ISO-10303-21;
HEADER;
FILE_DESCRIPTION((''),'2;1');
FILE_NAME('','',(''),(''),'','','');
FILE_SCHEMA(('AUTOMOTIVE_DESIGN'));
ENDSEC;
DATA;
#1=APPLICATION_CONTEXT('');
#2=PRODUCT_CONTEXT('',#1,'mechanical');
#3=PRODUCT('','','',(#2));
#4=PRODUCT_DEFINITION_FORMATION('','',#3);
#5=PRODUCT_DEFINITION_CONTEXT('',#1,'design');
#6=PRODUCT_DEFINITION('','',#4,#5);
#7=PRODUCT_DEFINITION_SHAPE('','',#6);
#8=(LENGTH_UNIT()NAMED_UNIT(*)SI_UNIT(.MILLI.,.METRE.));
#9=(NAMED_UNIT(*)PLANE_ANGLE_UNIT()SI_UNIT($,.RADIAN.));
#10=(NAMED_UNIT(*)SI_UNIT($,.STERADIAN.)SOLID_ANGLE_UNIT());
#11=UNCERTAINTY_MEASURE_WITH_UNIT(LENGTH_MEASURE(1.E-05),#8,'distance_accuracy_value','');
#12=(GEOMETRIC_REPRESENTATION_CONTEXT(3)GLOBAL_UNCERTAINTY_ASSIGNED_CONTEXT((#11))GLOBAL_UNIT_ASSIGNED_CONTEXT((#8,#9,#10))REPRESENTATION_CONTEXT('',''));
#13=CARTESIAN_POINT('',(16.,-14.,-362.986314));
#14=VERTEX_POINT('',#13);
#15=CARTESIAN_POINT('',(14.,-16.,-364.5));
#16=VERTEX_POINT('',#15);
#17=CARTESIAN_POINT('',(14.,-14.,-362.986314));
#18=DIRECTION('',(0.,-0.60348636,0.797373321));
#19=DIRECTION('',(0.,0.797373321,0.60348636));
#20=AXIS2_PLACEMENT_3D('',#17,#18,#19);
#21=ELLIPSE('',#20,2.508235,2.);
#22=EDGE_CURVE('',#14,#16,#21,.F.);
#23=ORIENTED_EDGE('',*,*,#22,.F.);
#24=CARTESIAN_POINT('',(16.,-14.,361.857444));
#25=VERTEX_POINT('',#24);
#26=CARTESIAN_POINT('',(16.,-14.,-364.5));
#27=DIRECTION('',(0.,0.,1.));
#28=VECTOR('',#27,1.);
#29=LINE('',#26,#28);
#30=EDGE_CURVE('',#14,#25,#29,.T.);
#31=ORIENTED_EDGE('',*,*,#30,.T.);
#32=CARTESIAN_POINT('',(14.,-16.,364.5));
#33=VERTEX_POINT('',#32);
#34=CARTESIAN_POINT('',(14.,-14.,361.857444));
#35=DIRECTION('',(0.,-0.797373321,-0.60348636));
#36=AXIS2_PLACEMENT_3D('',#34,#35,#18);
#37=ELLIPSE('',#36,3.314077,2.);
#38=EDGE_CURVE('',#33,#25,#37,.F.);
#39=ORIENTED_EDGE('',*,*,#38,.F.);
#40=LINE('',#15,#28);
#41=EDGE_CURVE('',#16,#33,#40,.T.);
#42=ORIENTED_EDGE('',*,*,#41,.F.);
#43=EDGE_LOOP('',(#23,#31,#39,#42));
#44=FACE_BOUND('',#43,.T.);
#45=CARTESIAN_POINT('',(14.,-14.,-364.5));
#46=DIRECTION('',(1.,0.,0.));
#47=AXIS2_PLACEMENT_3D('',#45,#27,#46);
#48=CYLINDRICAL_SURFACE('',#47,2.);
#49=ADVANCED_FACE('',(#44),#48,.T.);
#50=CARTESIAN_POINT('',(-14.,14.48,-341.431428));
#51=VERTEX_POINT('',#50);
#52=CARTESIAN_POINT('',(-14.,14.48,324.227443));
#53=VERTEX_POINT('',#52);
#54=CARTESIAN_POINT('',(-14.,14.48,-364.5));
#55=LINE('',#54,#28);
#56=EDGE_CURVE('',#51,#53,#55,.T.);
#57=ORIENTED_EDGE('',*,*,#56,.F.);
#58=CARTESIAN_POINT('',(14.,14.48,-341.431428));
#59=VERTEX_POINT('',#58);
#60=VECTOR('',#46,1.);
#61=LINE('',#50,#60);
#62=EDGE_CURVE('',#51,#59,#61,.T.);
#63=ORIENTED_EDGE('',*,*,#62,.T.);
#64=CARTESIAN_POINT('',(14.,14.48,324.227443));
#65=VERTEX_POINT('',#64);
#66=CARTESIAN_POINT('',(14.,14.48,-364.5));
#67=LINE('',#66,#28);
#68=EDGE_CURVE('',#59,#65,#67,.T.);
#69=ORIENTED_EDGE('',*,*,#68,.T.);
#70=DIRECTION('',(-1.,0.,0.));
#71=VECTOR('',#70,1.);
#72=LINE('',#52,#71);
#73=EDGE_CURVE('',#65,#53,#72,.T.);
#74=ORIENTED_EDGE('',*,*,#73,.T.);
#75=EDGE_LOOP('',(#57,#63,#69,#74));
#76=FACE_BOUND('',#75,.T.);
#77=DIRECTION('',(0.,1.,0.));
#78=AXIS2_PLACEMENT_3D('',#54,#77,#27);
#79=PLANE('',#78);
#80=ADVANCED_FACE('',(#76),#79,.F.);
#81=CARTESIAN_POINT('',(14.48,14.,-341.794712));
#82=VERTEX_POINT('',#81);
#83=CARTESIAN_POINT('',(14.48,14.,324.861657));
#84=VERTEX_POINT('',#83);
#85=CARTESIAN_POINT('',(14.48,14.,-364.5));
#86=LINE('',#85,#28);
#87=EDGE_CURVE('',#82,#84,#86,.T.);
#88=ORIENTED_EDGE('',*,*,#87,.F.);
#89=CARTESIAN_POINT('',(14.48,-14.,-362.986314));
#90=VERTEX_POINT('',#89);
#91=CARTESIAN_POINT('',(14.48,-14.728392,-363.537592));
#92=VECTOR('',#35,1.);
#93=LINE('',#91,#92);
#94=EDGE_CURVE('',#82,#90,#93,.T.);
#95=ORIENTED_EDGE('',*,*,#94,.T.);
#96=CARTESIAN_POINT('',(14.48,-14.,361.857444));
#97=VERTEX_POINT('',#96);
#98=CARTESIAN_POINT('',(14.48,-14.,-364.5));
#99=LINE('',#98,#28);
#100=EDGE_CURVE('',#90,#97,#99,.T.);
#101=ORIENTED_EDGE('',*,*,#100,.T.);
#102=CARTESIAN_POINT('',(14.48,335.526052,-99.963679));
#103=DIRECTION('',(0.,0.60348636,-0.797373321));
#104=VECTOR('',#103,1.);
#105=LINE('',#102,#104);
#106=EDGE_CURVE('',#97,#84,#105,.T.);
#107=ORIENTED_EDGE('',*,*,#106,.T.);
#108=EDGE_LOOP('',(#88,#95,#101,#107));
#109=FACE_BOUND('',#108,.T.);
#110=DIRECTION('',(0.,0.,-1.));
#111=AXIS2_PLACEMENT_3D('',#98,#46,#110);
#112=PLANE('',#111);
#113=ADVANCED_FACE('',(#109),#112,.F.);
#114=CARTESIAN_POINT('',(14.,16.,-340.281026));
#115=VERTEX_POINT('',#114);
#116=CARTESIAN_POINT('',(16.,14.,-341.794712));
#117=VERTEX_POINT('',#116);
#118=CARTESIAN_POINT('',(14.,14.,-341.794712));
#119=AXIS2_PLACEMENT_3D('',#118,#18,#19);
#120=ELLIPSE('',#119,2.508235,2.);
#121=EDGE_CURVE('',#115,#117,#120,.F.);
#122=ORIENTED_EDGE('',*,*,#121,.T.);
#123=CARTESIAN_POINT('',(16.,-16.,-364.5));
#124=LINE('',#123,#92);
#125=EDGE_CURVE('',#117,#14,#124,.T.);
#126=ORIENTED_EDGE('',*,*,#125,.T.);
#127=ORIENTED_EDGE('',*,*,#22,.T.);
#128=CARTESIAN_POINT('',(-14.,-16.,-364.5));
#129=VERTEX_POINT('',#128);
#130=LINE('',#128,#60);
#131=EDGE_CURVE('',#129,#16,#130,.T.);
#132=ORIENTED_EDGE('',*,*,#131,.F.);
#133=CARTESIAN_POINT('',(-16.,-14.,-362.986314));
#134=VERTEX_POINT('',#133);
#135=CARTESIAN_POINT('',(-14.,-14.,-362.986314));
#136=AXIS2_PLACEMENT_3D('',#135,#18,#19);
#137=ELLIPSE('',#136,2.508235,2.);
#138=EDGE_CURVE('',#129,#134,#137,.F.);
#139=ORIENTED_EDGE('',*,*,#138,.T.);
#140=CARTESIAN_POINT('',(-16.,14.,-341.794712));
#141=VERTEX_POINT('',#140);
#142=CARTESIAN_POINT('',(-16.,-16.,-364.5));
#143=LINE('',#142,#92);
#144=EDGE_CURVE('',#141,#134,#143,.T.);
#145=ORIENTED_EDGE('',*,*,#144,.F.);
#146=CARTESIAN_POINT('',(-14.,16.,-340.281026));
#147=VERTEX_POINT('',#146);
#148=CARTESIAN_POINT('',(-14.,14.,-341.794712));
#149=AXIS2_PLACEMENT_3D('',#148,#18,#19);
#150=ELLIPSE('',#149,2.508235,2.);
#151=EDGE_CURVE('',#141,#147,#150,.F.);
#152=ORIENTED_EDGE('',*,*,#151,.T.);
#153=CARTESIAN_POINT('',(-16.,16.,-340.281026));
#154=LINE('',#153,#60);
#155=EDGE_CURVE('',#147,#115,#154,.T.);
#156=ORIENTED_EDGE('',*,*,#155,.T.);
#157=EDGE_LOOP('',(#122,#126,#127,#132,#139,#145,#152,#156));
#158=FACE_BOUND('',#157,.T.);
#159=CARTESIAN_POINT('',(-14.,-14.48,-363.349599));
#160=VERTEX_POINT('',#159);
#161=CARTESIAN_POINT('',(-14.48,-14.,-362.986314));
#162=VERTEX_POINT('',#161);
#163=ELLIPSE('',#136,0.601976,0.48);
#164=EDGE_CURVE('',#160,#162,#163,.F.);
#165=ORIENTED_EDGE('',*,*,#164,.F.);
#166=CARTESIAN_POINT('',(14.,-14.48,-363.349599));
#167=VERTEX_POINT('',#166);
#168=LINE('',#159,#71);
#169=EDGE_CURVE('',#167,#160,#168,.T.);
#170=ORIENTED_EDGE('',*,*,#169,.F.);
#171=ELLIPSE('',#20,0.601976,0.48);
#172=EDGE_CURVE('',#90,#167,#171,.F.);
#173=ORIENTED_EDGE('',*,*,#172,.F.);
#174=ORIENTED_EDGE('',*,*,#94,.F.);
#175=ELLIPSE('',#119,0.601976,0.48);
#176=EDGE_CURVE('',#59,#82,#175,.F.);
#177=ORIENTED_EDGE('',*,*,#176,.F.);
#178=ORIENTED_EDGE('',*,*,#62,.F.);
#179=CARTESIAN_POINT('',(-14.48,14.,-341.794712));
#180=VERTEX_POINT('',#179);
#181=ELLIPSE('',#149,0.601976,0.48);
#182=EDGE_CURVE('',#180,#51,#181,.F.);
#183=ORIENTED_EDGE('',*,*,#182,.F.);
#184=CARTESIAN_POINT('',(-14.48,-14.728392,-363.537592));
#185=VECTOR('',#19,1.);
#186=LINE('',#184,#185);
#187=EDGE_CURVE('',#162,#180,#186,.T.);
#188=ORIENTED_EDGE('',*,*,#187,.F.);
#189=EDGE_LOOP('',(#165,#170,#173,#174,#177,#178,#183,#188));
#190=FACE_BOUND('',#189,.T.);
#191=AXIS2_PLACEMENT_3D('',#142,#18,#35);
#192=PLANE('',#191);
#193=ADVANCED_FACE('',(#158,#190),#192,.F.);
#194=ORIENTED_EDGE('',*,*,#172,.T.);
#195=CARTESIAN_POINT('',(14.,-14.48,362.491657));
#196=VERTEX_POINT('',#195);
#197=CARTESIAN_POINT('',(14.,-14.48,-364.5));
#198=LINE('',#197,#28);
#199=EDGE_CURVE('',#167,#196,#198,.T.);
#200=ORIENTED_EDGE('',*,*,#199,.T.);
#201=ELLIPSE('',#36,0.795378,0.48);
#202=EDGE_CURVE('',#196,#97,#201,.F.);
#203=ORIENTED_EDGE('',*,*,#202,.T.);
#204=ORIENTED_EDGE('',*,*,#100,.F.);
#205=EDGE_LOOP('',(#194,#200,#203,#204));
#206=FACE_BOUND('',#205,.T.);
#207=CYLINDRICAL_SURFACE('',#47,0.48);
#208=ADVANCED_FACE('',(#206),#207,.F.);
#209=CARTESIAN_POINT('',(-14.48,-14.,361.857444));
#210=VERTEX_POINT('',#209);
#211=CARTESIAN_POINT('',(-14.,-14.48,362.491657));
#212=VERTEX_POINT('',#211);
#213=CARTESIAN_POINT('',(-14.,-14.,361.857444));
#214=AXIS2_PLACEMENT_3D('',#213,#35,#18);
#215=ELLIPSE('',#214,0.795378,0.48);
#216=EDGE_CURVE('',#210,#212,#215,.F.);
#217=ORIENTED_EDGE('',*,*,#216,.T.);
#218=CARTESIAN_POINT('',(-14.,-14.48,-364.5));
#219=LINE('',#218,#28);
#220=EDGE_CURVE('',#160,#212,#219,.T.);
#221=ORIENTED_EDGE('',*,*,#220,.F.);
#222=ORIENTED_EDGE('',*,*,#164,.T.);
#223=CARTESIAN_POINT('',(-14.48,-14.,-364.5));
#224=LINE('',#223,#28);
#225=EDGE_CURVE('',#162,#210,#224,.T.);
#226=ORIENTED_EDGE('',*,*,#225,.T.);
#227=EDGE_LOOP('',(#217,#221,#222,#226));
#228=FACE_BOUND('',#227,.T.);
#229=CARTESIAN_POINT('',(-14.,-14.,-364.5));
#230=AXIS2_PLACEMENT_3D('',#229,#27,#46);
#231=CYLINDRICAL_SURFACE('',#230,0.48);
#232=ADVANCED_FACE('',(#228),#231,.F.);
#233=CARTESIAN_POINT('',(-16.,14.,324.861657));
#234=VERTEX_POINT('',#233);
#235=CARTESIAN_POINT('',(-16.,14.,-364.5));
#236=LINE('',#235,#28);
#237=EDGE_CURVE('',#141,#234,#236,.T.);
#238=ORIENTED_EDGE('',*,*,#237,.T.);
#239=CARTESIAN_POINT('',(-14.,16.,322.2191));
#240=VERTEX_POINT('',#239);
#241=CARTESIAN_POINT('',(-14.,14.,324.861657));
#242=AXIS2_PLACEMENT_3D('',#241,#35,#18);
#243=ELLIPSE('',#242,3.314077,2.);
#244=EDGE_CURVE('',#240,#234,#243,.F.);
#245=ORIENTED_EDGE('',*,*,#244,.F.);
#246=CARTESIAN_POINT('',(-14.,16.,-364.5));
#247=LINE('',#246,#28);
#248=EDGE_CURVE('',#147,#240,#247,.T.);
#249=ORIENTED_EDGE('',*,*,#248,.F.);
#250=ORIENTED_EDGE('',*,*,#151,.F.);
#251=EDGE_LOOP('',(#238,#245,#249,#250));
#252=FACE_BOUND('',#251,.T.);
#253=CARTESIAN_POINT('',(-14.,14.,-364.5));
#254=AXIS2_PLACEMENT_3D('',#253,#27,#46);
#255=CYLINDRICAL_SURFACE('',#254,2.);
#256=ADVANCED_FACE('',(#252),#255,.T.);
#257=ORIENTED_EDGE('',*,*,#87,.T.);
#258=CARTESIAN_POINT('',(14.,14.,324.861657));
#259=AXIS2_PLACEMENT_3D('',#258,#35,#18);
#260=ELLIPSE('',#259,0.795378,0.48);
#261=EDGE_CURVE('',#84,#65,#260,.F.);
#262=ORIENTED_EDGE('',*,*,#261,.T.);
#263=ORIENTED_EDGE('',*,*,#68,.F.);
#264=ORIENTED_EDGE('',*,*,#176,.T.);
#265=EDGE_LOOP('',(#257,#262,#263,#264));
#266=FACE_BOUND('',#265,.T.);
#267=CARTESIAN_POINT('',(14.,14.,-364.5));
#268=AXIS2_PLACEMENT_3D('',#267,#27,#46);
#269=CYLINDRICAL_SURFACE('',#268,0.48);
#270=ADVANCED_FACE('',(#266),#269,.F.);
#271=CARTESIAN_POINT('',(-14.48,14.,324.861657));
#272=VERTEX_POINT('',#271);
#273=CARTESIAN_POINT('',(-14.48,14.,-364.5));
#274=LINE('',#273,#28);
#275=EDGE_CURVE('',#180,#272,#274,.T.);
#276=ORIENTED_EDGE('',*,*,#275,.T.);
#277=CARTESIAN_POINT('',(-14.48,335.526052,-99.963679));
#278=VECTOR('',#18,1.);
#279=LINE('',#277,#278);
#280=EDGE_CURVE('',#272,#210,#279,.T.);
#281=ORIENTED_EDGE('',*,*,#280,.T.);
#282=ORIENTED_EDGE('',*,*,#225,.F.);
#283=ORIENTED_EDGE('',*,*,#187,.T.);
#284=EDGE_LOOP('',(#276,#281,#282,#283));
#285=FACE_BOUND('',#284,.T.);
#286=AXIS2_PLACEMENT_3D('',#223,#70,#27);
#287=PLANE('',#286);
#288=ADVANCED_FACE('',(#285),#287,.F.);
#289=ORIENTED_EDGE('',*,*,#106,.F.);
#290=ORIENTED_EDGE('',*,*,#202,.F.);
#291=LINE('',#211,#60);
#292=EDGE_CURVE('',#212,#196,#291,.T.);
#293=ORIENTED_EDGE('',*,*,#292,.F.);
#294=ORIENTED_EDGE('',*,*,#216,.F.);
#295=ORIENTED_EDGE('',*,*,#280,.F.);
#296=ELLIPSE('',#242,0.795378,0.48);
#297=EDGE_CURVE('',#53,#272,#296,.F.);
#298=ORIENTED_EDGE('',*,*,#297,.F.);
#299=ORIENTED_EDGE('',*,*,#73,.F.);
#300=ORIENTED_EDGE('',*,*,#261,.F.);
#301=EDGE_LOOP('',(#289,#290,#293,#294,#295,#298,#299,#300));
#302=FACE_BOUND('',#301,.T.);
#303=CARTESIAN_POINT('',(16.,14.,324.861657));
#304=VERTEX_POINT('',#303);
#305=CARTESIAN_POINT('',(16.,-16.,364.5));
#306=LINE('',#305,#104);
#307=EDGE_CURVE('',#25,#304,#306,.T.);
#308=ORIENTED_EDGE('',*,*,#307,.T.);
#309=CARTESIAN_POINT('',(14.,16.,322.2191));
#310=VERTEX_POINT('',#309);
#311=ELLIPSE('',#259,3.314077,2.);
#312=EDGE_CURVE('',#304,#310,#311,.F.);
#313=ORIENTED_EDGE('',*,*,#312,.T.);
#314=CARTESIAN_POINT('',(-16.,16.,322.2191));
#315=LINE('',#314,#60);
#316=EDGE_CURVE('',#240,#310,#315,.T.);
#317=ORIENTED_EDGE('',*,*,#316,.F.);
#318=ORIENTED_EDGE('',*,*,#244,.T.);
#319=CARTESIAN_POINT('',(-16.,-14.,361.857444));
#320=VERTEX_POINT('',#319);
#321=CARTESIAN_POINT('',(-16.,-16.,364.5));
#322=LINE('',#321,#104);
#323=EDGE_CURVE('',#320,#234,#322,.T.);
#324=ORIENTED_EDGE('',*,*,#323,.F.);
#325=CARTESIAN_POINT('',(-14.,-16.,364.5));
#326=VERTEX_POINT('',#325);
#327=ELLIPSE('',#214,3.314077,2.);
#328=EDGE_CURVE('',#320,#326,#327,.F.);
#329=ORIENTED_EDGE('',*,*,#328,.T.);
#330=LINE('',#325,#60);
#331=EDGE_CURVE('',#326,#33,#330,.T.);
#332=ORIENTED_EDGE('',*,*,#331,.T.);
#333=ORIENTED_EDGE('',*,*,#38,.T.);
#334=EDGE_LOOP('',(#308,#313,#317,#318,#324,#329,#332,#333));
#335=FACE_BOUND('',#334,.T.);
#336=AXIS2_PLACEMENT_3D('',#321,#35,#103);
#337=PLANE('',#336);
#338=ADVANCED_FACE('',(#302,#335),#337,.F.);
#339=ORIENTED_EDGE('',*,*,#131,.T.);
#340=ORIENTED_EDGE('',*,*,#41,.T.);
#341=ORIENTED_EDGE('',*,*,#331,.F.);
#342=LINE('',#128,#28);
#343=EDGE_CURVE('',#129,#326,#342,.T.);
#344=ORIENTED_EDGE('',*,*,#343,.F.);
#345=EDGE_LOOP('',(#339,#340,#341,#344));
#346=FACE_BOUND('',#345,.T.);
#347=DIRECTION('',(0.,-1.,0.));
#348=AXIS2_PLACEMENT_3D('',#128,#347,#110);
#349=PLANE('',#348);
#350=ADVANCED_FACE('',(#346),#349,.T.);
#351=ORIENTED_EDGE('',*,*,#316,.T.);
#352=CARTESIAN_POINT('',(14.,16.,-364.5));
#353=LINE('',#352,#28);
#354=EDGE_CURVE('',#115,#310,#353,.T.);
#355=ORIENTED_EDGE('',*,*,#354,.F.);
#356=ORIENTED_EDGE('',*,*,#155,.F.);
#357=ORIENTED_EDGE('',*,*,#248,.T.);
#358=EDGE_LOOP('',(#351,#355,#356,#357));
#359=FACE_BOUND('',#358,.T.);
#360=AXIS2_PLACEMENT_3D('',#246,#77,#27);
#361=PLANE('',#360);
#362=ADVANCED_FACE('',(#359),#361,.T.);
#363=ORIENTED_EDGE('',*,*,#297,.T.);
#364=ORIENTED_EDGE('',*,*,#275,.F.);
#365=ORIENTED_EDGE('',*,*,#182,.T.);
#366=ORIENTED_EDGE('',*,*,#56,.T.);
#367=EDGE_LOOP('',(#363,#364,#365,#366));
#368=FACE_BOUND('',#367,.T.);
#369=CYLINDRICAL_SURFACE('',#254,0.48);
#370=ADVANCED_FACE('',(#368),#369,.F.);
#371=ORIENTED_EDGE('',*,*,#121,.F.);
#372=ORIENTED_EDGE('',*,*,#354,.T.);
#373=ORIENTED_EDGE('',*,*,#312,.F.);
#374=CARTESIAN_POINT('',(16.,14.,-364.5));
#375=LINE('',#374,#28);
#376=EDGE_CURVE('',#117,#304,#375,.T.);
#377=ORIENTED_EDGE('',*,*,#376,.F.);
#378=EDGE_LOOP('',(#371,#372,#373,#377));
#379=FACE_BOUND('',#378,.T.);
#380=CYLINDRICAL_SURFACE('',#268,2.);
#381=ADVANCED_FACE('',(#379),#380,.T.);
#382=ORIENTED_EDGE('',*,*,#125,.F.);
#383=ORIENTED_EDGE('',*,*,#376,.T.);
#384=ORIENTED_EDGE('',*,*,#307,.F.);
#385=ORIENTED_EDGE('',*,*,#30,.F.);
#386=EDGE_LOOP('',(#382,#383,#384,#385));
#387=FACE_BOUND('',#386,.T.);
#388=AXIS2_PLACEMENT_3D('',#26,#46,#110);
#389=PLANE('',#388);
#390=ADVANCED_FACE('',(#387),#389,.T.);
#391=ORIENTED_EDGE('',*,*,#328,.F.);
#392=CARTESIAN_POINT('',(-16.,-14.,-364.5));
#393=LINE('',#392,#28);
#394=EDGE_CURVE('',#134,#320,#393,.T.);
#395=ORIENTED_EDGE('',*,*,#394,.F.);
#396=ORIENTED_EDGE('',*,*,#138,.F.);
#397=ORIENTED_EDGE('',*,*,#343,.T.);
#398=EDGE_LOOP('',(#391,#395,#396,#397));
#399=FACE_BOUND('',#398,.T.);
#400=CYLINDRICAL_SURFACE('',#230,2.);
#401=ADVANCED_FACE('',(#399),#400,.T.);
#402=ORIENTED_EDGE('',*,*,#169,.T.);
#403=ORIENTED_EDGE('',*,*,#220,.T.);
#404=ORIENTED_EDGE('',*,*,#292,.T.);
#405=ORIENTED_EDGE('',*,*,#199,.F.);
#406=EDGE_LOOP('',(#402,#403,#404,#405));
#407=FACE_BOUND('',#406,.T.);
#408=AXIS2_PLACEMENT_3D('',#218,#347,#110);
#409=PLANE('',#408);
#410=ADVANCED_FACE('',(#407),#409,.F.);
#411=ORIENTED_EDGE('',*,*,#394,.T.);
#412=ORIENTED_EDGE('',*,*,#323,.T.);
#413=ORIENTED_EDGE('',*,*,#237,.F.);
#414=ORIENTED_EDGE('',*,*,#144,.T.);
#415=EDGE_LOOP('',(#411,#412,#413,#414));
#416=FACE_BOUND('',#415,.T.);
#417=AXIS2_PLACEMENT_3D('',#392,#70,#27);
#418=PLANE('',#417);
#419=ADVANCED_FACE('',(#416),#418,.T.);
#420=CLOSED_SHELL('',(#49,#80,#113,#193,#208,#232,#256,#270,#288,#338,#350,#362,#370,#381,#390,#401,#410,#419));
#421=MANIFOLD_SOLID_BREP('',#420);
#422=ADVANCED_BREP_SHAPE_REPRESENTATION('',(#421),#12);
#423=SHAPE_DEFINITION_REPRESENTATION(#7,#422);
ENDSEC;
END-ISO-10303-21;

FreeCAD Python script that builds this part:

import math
import FreeCAD as App
import Part
import Sketcher
Q = App.Units.Quantity

doc = App.newDocument("Part")
body = doc.addObject("PartDesign::Body", "Body")

# Sketch on XY plane
sketch1 = body.newObject("Sketcher::SketchObject", "Sketch")
sketch1.AttachmentSupport = (doc.getObject("XY_Plane"), [""])
sketch1.MapMode = "FlatFace"
sketch1.addGeometry([
    Part.LineSegment(App.Vector(-14, -16, 0), App.Vector(14, -16, 0)),  # 0
    Part.ArcOfCircle(Part.Circle(App.Vector(14, -14, 0), App.Vector(0, 0, 1), 2), math.radians(-90), math.radians(0)),  # 1
    Part.LineSegment(App.Vector(16, -14, 0), App.Vector(16, 14, 0)),  # 2
    Part.ArcOfCircle(Part.Circle(App.Vector(14, 14, 0), App.Vector(0, 0, 1), 2), math.radians(0), math.radians(90)),  # 3
    Part.LineSegment(App.Vector(14, 16, 0), App.Vector(-14, 16, 0)),  # 4
    Part.ArcOfCircle(Part.Circle(App.Vector(-14, 14, 0), App.Vector(0, 0, 1), 2), math.radians(90), math.radians(180)),  # 5
    Part.LineSegment(App.Vector(-16, 14, 0), App.Vector(-16, -14, 0)),  # 6
    Part.ArcOfCircle(Part.Circle(App.Vector(-14, -14, 0), App.Vector(0, 0, 1), 2), math.radians(-180), math.radians(-90)),  # 7
    Part.ArcOfCircle(Part.Circle(App.Vector(-14, 14, 0), App.Vector(0, 0, 1), 0.48), math.radians(90), math.radians(180)),  # 8
    Part.LineSegment(App.Vector(-14, 14.48, 0), App.Vector(14, 14.48, 0)),  # 9
    Part.ArcOfCircle(Part.Circle(App.Vector(14, 14, 0), App.Vector(0, 0, 1), 0.48), math.radians(0), math.radians(90)),  # 10
    Part.LineSegment(App.Vector(14.48, 14, 0), App.Vector(14.48, -14, 0)),  # 11
    Part.ArcOfCircle(Part.Circle(App.Vector(14, -14, 0), App.Vector(0, 0, 1), 0.48), math.radians(-90), math.radians(0)),  # 12
    Part.LineSegment(App.Vector(14, -14.48, 0), App.Vector(-14, -14.48, 0)),  # 13
    Part.ArcOfCircle(Part.Circle(App.Vector(-14, -14, 0), App.Vector(0, 0, 1), 0.48), math.radians(180), math.radians(270)),  # 14
    Part.LineSegment(App.Vector(-14.48, -14, 0), App.Vector(-14.48, 14, 0)),  # 15
], False)
sketch1.addConstraint([
    Sketcher.Constraint("Tangent", 0, 2, 1, 1),
    Sketcher.Constraint("Tangent", 1, 2, 2, 1),
    Sketcher.Constraint("Tangent", 2, 2, 3, 1),
    Sketcher.Constraint("Tangent", 3, 2, 4, 1),
    Sketcher.Constraint("Tangent", 4, 2, 5, 1),
    Sketcher.Constraint("Tangent", 5, 2, 6, 1),
    Sketcher.Constraint("Tangent", 6, 2, 7, 1),
    Sketcher.Constraint("Tangent", 7, 2, 0, 1),
    Sketcher.Constraint("Tangent", 8, 1, 9, 1),
    Sketcher.Constraint("Tangent", 9, 2, 10, 2),
    Sketcher.Constraint("Tangent", 10, 1, 11, 1),
    Sketcher.Constraint("Tangent", 11, 2, 12, 2),
    Sketcher.Constraint("Tangent", 12, 1, 13, 1),
    Sketcher.Constraint("Tangent", 13, 2, 14, 2),
    Sketcher.Constraint("Tangent", 14, 1, 15, 1),
    Sketcher.Constraint("Tangent", 15, 2, 8, 2),
    Sketcher.Constraint("Horizontal", 0),
    Sketcher.Constraint("Vertical", 2),
    Sketcher.Constraint("Horizontal", 4),
    Sketcher.Constraint("Vertical", 6),
    Sketcher.Constraint("Horizontal", 9),
    Sketcher.Constraint("Vertical", 11),
    Sketcher.Constraint("Horizontal", 13),
    Sketcher.Constraint("Vertical", 15),
    Sketcher.Constraint("Coincident", 8, 3, 5, 3),
    Sketcher.Constraint("Coincident", 10, 3, 3, 3),
    Sketcher.Constraint("Coincident", 12, 3, 1, 3),
    Sketcher.Constraint("Equal", 1, 3),
    Sketcher.Constraint("Equal", 3, 5),
    Sketcher.Constraint("Equal", 5, 7),
    Sketcher.Constraint("Equal", 12, 14),
    Sketcher.Constraint("Symmetric", 1, 3, 5, 3, -1, 1),
    Sketcher.Constraint("Equal", 13, 2),
    Sketcher.Constraint("Radius", 1, 2.0),
    Sketcher.Constraint("DistanceX", 0, 1, 0, 2, 28.0),
    Sketcher.Constraint("Radius", 8, 0.48),
])
pad1 = body.newObject("PartDesign::Pad", "Pad")
pad1.Profile = sketch1
pad1.Type = "TwoLengths"
pad1.Length = 364.5
pad1.Length2 = 364.5

# Sketch on YZ plane
sketch2 = body.newObject("Sketcher::SketchObject", "Sketch001")
sketch2.AttachmentSupport = (doc.getObject("YZ_Plane"), [""])
sketch2.MapMode = "FlatFace"
sketch2.AttachmentOffset = App.Placement(App.Vector(0, 0, 16), App.Rotation())
sketch2.addGeometry([
    Part.LineSegment(App.Vector(16, 364, 0), App.Vector(-16, 364, 0)),
    Part.LineSegment(App.Vector(-16, 364, 0), App.Vector(16, 322, 0)),
    Part.LineSegment(App.Vector(16, 322, 0), App.Vector(16, 364, 0)),
], False)
sketch2.addConstraint([
    Sketcher.Constraint("Coincident", 0, 2, 1, 1),
    Sketcher.Constraint("Coincident", 1, 2, 2, 1),
    Sketcher.Constraint("Coincident", 2, 2, 0, 1),
    Sketcher.Constraint("Horizontal", 0),
    Sketcher.Constraint("Vertical", 2),
    Sketcher.Constraint("DistanceX", 0, 2, 0, 1, 32.0),
    Sketcher.Constraint("DistanceX", 0, 2, -1, 1, 16.0),
    Sketcher.Constraint("DistanceY", -1, 1, 0, 2, 364.5),
    Sketcher.Constraint("Angle", 1, Q("-52.88 deg")),
])
pocket1 = body.newObject("PartDesign::Pocket", "Pocket")
pocket1.Profile = sketch2
pocket1.Type = "ThroughAll"

# Sketch on YZ plane
sketch3 = body.newObject("Sketcher::SketchObject", "Sketch002")
sketch3.AttachmentSupport = (doc.getObject("YZ_Plane"), [""])
sketch3.MapMode = "FlatFace"
sketch3.AttachmentOffset = App.Placement(App.Vector(0, 0, 16), App.Rotation())
sketch3.addGeometry([
    Part.LineSegment(App.Vector(-16, -364, 0), App.Vector(16, -364, 0)),
    Part.LineSegment(App.Vector(16, -364, 0), App.Vector(16, -340, 0)),
    Part.LineSegment(App.Vector(16, -340, 0), App.Vector(-16, -364, 0)),
], False)
sketch3.addConstraint([
    Sketcher.Constraint("Coincident", 0, 2, 1, 1),
    Sketcher.Constraint("Coincident", 1, 2, 2, 1),
    Sketcher.Constraint("Coincident", 2, 2, 0, 1),
    Sketcher.Constraint("Horizontal", 0),
    Sketcher.Constraint("Vertical", 1),
    Sketcher.Constraint("DistanceX", 0, 1, 0, 2, 32.0),
    Sketcher.Constraint("DistanceX", -1, 1, 0, 2, 16.0),
    Sketcher.Constraint("DistanceY", 0, 2, -1, 1, 364.5),
    Sketcher.Constraint("Angle", 2, Q("-142.88 deg")),
])
pocket2 = body.newObject("PartDesign::Pocket", "Pocket001")
pocket2.Profile = sketch3
pocket2.Type = "ThroughAll"

doc.recompute()
